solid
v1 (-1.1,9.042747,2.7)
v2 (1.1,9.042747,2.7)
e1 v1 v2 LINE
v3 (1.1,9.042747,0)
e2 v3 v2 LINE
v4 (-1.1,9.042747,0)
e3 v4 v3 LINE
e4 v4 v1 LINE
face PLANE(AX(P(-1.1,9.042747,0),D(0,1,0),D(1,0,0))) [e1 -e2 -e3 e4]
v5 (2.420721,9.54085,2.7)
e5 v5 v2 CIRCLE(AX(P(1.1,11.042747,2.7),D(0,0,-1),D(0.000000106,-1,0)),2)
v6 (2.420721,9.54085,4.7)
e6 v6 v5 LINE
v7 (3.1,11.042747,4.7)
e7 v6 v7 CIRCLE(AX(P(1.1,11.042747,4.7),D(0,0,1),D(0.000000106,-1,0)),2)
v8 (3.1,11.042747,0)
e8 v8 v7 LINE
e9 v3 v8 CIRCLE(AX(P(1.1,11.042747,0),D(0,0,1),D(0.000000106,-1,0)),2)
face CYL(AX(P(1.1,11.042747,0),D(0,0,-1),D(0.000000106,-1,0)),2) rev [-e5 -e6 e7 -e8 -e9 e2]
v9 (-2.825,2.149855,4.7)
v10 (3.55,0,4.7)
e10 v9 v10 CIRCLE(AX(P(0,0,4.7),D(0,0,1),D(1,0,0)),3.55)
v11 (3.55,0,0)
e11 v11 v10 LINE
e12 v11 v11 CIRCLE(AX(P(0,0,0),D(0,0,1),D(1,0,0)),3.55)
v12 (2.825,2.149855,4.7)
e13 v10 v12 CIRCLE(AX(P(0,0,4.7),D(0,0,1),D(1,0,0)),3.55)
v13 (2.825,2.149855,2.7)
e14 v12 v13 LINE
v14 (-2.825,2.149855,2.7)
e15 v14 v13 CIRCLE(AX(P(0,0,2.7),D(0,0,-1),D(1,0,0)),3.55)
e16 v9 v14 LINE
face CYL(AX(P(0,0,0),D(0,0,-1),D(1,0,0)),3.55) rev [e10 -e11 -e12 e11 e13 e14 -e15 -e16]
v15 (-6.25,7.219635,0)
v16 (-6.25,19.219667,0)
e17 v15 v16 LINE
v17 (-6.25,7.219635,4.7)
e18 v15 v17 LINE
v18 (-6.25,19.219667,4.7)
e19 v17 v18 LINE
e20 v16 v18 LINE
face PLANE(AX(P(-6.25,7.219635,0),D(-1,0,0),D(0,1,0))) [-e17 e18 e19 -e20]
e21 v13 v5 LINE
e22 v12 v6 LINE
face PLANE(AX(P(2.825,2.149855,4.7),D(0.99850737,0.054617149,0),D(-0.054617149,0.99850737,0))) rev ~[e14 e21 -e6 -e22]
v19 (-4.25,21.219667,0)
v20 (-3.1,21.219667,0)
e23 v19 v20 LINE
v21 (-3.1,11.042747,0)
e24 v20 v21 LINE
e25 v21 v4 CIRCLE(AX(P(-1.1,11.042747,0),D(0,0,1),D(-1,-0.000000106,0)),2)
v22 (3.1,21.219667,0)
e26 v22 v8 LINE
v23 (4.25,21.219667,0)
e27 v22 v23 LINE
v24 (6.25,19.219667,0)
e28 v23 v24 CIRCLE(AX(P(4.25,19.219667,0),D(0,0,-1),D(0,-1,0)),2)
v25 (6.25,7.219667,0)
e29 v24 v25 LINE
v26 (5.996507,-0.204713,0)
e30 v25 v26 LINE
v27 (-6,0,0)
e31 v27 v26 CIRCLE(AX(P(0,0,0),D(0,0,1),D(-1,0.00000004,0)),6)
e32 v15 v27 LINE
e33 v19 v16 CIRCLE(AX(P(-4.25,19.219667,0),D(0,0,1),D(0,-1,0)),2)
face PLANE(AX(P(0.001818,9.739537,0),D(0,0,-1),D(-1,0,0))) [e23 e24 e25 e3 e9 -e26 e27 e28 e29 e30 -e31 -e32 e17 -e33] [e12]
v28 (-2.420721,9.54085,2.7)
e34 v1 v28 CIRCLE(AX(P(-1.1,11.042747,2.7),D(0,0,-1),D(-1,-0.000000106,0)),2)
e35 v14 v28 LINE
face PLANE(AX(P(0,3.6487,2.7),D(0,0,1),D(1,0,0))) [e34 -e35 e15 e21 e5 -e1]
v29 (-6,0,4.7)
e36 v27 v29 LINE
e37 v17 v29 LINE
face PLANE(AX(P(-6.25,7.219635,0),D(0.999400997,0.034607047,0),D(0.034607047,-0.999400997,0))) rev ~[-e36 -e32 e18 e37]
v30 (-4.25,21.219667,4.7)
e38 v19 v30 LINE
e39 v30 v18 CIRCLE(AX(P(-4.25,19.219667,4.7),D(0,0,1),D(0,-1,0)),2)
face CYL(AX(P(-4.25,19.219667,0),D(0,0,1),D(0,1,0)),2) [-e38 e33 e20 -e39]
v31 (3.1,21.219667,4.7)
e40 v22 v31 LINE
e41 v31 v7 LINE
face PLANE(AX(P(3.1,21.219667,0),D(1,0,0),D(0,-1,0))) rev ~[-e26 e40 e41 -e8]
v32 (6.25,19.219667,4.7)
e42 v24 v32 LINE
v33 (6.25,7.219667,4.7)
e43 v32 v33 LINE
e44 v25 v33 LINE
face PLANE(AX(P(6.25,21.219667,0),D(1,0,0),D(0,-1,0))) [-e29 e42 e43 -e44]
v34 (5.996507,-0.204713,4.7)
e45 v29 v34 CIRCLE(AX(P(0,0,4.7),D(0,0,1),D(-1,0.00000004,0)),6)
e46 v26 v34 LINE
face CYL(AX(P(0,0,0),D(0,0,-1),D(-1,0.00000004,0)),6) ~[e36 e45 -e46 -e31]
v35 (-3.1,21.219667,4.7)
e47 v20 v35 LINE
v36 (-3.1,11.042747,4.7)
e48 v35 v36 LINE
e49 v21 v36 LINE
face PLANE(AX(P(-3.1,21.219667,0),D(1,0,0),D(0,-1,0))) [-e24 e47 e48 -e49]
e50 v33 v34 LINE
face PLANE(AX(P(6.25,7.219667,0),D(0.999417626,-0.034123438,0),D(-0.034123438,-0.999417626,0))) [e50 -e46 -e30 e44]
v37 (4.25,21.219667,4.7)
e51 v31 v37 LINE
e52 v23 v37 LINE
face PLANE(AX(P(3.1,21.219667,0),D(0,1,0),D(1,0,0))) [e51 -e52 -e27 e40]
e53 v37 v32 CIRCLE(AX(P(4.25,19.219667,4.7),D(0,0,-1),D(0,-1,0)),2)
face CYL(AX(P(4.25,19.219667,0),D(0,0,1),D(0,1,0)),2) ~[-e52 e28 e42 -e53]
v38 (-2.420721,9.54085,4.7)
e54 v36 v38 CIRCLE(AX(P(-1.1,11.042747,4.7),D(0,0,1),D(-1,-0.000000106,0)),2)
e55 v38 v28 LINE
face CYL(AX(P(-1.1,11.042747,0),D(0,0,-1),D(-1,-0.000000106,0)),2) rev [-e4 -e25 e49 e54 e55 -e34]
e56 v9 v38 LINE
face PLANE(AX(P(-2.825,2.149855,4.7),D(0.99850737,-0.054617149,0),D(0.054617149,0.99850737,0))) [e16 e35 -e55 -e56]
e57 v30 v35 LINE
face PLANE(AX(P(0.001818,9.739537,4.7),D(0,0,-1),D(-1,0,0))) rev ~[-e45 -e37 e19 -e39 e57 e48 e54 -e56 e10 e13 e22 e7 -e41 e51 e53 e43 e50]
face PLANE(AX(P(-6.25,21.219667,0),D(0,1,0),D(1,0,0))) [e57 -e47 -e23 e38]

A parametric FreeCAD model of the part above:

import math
import FreeCAD as App
import Part
import Sketcher
from FreeCAD import Vector


def edges_at(feature, points):
    """Names of the edges that pass closest to the given points."""
    edges = feature.Shape.Edges
    near = lambda p: min(range(len(edges)), key=lambda i: edges[i].distToShape(Part.Vertex(*p))[0])
    return sorted({f"Edge{near(p) + 1}" for p in points})

doc = App.newDocument("Part")
body = doc.addObject("PartDesign::Body", "Body")

sketch1 = body.newObject("Sketcher::SketchObject", "Sketch")
sketch1.AttachmentSupport = (doc.getObject("XY_Plane"), [""])
sketch1.MapMode = "FlatFace"
sketch1.addGeometry([
    Part.LineSegment(Vector(-3.1, 21.2, 0), Vector(-6.2, 21.2, 0)),
    Part.LineSegment(Vector(-6.2, 21.2, 0), Vector(-6.2, 7.2, 0)),
    Part.LineSegment(Vector(-6.2, 7.2, 0), Vector(-6, 0, 0)),
    Part.ArcOfCircle(Part.Circle(Vector(0, 0, 0), Vector(0, 0, 1), 6), math.radians(180), math.radians(358)),
    Part.LineSegment(Vector(6, -0.2, 0), Vector(6.2, 7.2, 0)),
    Part.LineSegment(Vector(6.2, 7.2, 0), Vector(6.2, 21.2, 0)),
    Part.LineSegment(Vector(6.2, 21.2, 0), Vector(3.1, 21.2, 0)),
    Part.LineSegment(Vector(3.1, 21.2, 0), Vector(3.1, 11, 0)),
    Part.ArcOfCircle(Part.Circle(Vector(1.1, 11, 0), Vector(0, 0, 1), 2), math.radians(-90), math.radians(0)),
    Part.LineSegment(Vector(1.1, 9, 0), Vector(-1.1, 9, 0)),
    Part.ArcOfCircle(Part.Circle(Vector(-1.1, 11, 0), Vector(0, 0, 1), 2), math.radians(-180), math.radians(-90)),
    Part.LineSegment(Vector(-3.1, 11, 0), Vector(-3.1, 21.2, 0)),
    Part.Circle(Vector(0, 0, 0), Vector(0, 0, 1), 3.5),
], False)
sketch1.addConstraint([
    Sketcher.Constraint("Coincident", 0, 2, 1, 1),
    Sketcher.Constraint("Coincident", 1, 2, 2, 1),
    Sketcher.Constraint("Coincident", 2, 2, 3, 1),
    Sketcher.Constraint("Coincident", 3, 2, 4, 1),
    Sketcher.Constraint("Coincident", 4, 2, 5, 1),
    Sketcher.Constraint("Coincident", 5, 2, 6, 1),
    Sketcher.Constraint("Coincident", 6, 2, 7, 1),
    Sketcher.Constraint("Tangent", 7, 2, 8, 2),
    Sketcher.Constraint("Tangent", 8, 1, 9, 1),
    Sketcher.Constraint("Tangent", 9, 2, 10, 2),
    Sketcher.Constraint("Tangent", 10, 1, 11, 1),
    Sketcher.Constraint("Coincident", 11, 2, 0, 1),
    Sketcher.Constraint("Horizontal", 0),
    Sketcher.Constraint("Vertical", 1),
    Sketcher.Constraint("Vertical", 5),
    Sketcher.Constraint("Horizontal", 6),
    Sketcher.Constraint("Vertical", 7),
    Sketcher.Constraint("Horizontal", 9),
    Sketcher.Constraint("Vertical", 11),
    Sketcher.Constraint("Coincident", 3, 3, -1, 1),
    Sketcher.Constraint("Coincident", 12, 3, -1, 1),
    Sketcher.Constraint("Equal", 8, 10),
    Sketcher.Constraint("Symmetric", 0, 2, 5, 2, -2),
    Sketcher.Constraint("PointOnObject", 2, 2, -1),
    Sketcher.Constraint("Equal", 0, 6),
    Sketcher.Constraint("Radius", 3, 6.0),
    Sketcher.Constraint("Radius", 8, 2.0),
    Sketcher.Constraint("Diameter", 12, 7.1),
    Sketcher.Constraint("DistanceY", 5, 1, 5, 2, 14.0),
    Sketcher.Constraint("DistanceX", 9, 2, 9, 1, 2.2),
    Sketcher.Constraint("DistanceX", 0, 2, 0, 1, 3.15),
    Sketcher.Constraint("DistanceY", 7, 2, 7, 1, 10.17692),
    Sketcher.Constraint("DistanceY", 1, 2, 1, 1, 14.000032),
    Sketcher.Constraint("DistanceY", 3, 2, 8, 3, 11.24746),
    Sketcher.Constraint("Distance", 2, 7.223962),
])
pad1 = body.newObject("PartDesign::Pad", "Pad")
pad1.Profile = sketch1
pad1.Length = 4.7

sketch2 = body.newObject("Sketcher::SketchObject", "Sketch001")
sketch2.AttachmentSupport = (doc.getObject("XY_Plane"), [""])
sketch2.MapMode = "FlatFace"
sketch2.AttachmentOffset = App.Placement(Vector(0, 0, 4.7), App.Rotation())
sketch2.addGeometry([
    Part.ArcOfCircle(Part.Circle(Vector(0, 0, 0), Vector(0, 0, 1), 3.6), math.radians(143), math.radians(397)),
    Part.LineSegment(Vector(2.8, 2.1, 0), Vector(2.4, 9.9, 0)),
    Part.LineSegment(Vector(2.4, 9.9, 0), Vector(-2.4, 9.9, 0)),
    Part.LineSegment(Vector(-2.4, 9.9, 0), Vector(-2.8, 2.1, 0)),
], False)
sketch2.addConstraint([
    Sketcher.Constraint("Coincident", 0, 2, 1, 1),
    Sketcher.Constraint("Coincident", 1, 2, 2, 1),
    Sketcher.Constraint("Coincident", 2, 2, 3, 1),
    Sketcher.Constraint("Coincident", 3, 2, 0, 1),
    Sketcher.Constraint("Horizontal", 2),
    Sketcher.Constraint("Coincident", 0, 3, -1, 1),
    Sketcher.Constraint("Horizontal", 0, 2, 3, 2),
    Sketcher.Constraint("Equal", 1, 3),
    Sketcher.Constraint("Radius", 0, 3.55),
    Sketcher.Constraint("DistanceX", 2, 2, 2, 1, 4.8),
    Sketcher.Constraint("DistanceX", 3, 2, 0, 2, 5.65),
    Sketcher.Constraint("Distance", 1, 7.781439),
])
pocket1 = body.newObject("PartDesign::Pocket", "Pocket")
pocket1.Profile = sketch2
pocket1.Length = 2
doc.recompute()

fillet = body.newObject("PartDesign::Fillet", "Fillet")
fillet.Base = (pocket1, edges_at(pocket1, [(6.25, 21.22, 2.35), (-6.25, 21.22, 2.35)]))
fillet.Radius = 2

doc.recompute()
